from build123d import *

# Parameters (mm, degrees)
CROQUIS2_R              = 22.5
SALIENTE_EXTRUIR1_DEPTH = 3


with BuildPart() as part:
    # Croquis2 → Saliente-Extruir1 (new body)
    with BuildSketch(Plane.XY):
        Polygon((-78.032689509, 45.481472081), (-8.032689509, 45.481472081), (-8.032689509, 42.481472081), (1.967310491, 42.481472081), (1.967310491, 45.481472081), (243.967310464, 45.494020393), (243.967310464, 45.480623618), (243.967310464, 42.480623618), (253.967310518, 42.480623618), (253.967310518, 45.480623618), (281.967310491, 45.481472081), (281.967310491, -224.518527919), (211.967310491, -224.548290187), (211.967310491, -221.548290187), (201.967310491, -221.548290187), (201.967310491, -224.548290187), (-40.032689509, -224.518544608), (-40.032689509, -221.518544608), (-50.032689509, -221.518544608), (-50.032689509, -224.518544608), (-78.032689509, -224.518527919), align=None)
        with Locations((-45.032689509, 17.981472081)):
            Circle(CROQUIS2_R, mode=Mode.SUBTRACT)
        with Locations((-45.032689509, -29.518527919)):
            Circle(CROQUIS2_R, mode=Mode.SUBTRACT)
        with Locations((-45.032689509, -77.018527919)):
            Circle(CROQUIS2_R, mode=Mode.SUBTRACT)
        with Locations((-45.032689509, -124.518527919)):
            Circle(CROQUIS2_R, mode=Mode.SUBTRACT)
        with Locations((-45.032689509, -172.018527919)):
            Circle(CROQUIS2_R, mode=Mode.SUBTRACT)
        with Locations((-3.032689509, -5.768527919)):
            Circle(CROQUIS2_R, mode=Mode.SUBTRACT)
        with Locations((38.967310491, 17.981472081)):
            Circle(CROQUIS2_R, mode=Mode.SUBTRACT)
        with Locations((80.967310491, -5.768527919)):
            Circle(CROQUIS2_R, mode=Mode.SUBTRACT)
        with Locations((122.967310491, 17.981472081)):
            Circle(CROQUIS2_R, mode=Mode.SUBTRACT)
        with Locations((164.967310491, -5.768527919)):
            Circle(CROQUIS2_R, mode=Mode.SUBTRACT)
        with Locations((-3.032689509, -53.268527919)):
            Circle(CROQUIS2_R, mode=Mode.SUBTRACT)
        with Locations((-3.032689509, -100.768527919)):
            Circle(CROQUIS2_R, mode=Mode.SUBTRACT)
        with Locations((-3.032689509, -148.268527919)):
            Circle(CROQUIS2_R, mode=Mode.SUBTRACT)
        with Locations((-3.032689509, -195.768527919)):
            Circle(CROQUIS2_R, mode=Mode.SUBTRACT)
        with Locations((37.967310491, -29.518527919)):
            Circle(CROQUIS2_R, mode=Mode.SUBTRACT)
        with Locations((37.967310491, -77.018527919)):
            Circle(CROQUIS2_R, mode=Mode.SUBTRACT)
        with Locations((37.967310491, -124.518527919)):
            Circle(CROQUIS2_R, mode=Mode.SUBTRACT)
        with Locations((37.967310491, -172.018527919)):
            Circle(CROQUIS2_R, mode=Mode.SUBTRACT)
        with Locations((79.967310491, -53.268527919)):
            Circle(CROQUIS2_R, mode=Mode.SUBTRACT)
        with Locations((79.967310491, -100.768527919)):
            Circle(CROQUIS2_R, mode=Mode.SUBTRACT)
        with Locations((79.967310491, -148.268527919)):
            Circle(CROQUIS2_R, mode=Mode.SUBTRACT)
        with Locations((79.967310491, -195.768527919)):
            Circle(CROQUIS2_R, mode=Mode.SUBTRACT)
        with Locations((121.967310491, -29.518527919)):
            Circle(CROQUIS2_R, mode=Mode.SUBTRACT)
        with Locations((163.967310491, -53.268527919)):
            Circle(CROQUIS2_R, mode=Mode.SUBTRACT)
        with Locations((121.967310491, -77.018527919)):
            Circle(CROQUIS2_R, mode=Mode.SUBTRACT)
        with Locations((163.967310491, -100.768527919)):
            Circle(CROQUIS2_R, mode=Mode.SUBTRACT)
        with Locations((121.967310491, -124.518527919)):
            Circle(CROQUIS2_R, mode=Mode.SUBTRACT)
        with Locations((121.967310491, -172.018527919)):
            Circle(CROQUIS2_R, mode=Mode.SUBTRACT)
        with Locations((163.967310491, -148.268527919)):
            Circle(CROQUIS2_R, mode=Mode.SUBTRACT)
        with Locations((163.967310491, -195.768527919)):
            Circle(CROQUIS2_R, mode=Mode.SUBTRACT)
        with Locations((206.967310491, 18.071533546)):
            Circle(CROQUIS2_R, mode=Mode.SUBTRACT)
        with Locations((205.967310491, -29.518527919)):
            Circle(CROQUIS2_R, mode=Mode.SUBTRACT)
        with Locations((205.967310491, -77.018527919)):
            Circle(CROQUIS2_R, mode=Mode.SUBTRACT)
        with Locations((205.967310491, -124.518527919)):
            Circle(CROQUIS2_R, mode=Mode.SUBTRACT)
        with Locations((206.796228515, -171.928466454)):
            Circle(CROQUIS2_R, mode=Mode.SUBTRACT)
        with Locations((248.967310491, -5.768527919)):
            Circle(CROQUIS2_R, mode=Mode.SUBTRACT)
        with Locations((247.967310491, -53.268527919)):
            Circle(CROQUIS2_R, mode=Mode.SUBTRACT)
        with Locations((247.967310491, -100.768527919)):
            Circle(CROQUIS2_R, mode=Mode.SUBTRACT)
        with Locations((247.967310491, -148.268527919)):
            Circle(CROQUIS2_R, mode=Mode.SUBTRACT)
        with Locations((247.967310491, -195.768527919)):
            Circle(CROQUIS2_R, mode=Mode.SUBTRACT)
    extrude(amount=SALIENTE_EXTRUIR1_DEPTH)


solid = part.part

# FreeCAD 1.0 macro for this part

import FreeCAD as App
import Part
import Sketcher

V = App.Vector

doc = App.newDocument("Part")
params = doc.addObject("Spreadsheet::Sheet", "Params")
for row, (alias, value) in enumerate([
    ("sketch1_diameter", "45 mm"),
    ("sketch1_width", "70 mm"),
    ("sketch1_width2", "10 mm"),
    ("sketch1_height", "270 mm"),
    ("sketch1_height2", "3 mm"),
    ("pad1_length", "3 mm"),
], start=1):
    params.set(f"A{row}", alias)
    params.set(f"B{row}", "=" + value)
    params.setAlias(f"B{row}", alias)

body = doc.addObject("PartDesign::Body", "Body")

# Sketch on XY plane
sketch1 = body.newObject("Sketcher::SketchObject", "Sketch")
sketch1.AttachmentSupport = (doc.getObject("XY_Plane"), [""])
sketch1.MapMode = "FlatFace"
sketch1.addGeometry([
    Part.LineSegment(V(-8, 45.5, 0), V(-78, 45.5, 0)),  # 0
    Part.LineSegment(V(-78, 45.5, 0), V(-78, -224.5, 0)),  # 1
    Part.LineSegment(V(-78, -224.5, 0), V(-50, -224.5, 0)),  # 2
    Part.LineSegment(V(-50, -224.5, 0), V(-50, -221.5, 0)),  # 3
    Part.LineSegment(V(-50, -221.5, 0), V(-40, -221.5, 0)),  # 4
    Part.LineSegment(V(-40, -221.5, 0), V(-40, -224.5, 0)),  # 5
    Part.LineSegment(V(-40, -224.5, 0), V(202, -224.5, 0)),  # 6
    Part.LineSegment(V(202, -224.5, 0), V(202, -221.5, 0)),  # 7
    Part.LineSegment(V(202, -221.5, 0), V(212, -221.5, 0)),  # 8
    Part.LineSegment(V(212, -221.5, 0), V(212, -224.5, 0)),  # 9
    Part.LineSegment(V(212, -224.5, 0), V(282, -224.5, 0)),  # 10
    Part.LineSegment(V(282, -224.5, 0), V(282, 45.5, 0)),  # 11
    Part.LineSegment(V(282, 45.5, 0), V(254, 45.5, 0)),  # 12
    Part.LineSegment(V(254, 45.5, 0), V(254, 42.5, 0)),  # 13
    Part.LineSegment(V(254, 42.5, 0), V(244, 42.5, 0)),  # 14
    Part.LineSegment(V(244, 42.5, 0), V(244, 45.5, 0)),  # 15
    Part.LineSegment(V(244, 45.5, 0), V(2, 45.5, 0)),  # 16
    Part.LineSegment(V(2, 45.5, 0), V(2, 42.5, 0)),  # 17
    Part.LineSegment(V(2, 42.5, 0), V(-8, 42.5, 0)),  # 18
    Part.LineSegment(V(-8, 42.5, 0), V(-8, 45.5, 0)),  # 19
    Part.Circle(V(248, -195.8, 0), V(0, 0, 1), 22.5),  # 20
    Part.Circle(V(206.8, -171.9, 0), V(0, 0, 1), 22.5),  # 21
    Part.Circle(V(164, -195.8, 0), V(0, 0, 1), 22.5),  # 22
    Part.Circle(V(122, -172, 0), V(0, 0, 1), 22.5),  # 23
    Part.Circle(V(248, -148.3, 0), V(0, 0, 1), 22.5),  # 24
    Part.Circle(V(206, -124.5, 0), V(0, 0, 1), 22.5),  # 25
    Part.Circle(V(248, -100.8, 0), V(0, 0, 1), 22.5),  # 26
    Part.Circle(V(164, -148.3, 0), V(0, 0, 1), 22.5),  # 27
    Part.Circle(V(122, -124.5, 0), V(0, 0, 1), 22.5),  # 28
    Part.Circle(V(164, -100.8, 0), V(0, 0, 1), 22.5),  # 29
    Part.Circle(V(80, -195.8, 0), V(0, 0, 1), 22.5),  # 30
    Part.Circle(V(38, -172, 0), V(0, 0, 1), 22.5),  # 31
    Part.Circle(V(-3, -195.8, 0), V(0, 0, 1), 22.5),  # 32
    Part.Circle(V(-45, -172, 0), V(0, 0, 1), 22.5),  # 33
    Part.Circle(V(80, -148.3, 0), V(0, 0, 1), 22.5),  # 34
    Part.Circle(V(38, -124.5, 0), V(0, 0, 1), 22.5),  # 35
    Part.Circle(V(80, -100.8, 0), V(0, 0, 1), 22.5),  # 36
    Part.Circle(V(-3, -148.3, 0), V(0, 0, 1), 22.5),  # 37
    Part.Circle(V(-45, -124.5, 0), V(0, 0, 1), 22.5),  # 38
    Part.Circle(V(-3, -100.8, 0), V(0, 0, 1), 22.5),  # 39
    Part.Circle(V(206, -77, 0), V(0, 0, 1), 22.5),  # 40
    Part.Circle(V(248, -53.3, 0), V(0, 0, 1), 22.5),  # 41
    Part.Circle(V(206, -29.5, 0), V(0, 0, 1), 22.5),  # 42
    Part.Circle(V(122, -77, 0), V(0, 0, 1), 22.5),  # 43
    Part.Circle(V(164, -53.3, 0), V(0, 0, 1), 22.5),  # 44
    Part.Circle(V(122, -29.5, 0), V(0, 0, 1), 22.5),  # 45
    Part.Circle(V(249, -5.8, 0), V(0, 0, 1), 22.5),  # 46
    Part.Circle(V(207, 18.1, 0), V(0, 0, 1), 22.5),  # 47
    Part.Circle(V(165, -5.8, 0), V(0, 0, 1), 22.5),  # 48
    Part.Circle(V(123, 18, 0), V(0, 0, 1), 22.5),  # 49
    Part.Circle(V(38, -77, 0), V(0, 0, 1), 22.5),  # 50
    Part.Circle(V(80, -53.3, 0), V(0, 0, 1), 22.5),  # 51
    Part.Circle(V(38, -29.5, 0), V(0, 0, 1), 22.5),  # 52
    Part.Circle(V(-45, -77, 0), V(0, 0, 1), 22.5),  # 53
    Part.Circle(V(-3, -53.3, 0), V(0, 0, 1), 22.5),  # 54
    Part.Circle(V(-45, -29.5, 0), V(0, 0, 1), 22.5),  # 55
    Part.Circle(V(81, -5.8, 0), V(0, 0, 1), 22.5),  # 56
    Part.Circle(V(39, 18, 0), V(0, 0, 1), 22.5),  # 57
    Part.Circle(V(-3, -5.8, 0), V(0, 0, 1), 22.5),  # 58
    Part.Circle(V(-45, 18, 0), V(0, 0, 1), 22.5),  # 59
], False)
sketch1.addConstraint([
    Sketcher.Constraint("Coincident", 0, 2, 1, 1),
    Sketcher.Constraint("Coincident", 1, 2, 2, 1),
    Sketcher.Constraint("Coincident", 2, 2, 3, 1),
    Sketcher.Constraint("Coincident", 3, 2, 4, 1),
    Sketcher.Constraint("Coincident", 4, 2, 5, 1),
    Sketcher.Constraint("Coincident", 5, 2, 6, 1),
    Sketcher.Constraint("Coincident", 6, 2, 7, 1),
    Sketcher.Constraint("Coincident", 7, 2, 8, 1),
    Sketcher.Constraint("Coincident", 8, 2, 9, 1),
    Sketcher.Constraint("Coincident", 9, 2, 10, 1),
    Sketcher.Constraint("Coincident", 10, 2, 11, 1),
    Sketcher.Constraint("Coincident", 11, 2, 12, 1),
    Sketcher.Constraint("Coincident", 12, 2, 13, 1),
    Sketcher.Constraint("Coincident", 13, 2, 14, 1),
    Sketcher.Constraint("Coincident", 14, 2, 15, 1),
    Sketcher.Constraint("Coincident", 15, 2, 16, 1),
    Sketcher.Constraint("Coincident", 16, 2, 17, 1),
    Sketcher.Constraint("Coincident", 17, 2, 18, 1),
    Sketcher.Constraint("Coincident", 18, 2, 19, 1),
    Sketcher.Constraint("Coincident", 19, 2, 0, 1),
    Sketcher.Constraint("Horizontal", 0),
    Sketcher.Constraint("Vertical", 1),
    Sketcher.Constraint("Vertical", 3),
    Sketcher.Constraint("Horizontal", 4),
    Sketcher.Constraint("Vertical", 5),
    Sketcher.Constraint("Vertical", 7),
    Sketcher.Constraint("Horizontal", 8),
    Sketcher.Constraint("Vertical", 9),
    Sketcher.Constraint("Vertical", 11),
    Sketcher.Constraint("Vertical", 13),
    Sketcher.Constraint("Horizontal", 14),
    Sketcher.Constraint("Vertical", 15),
    Sketcher.Constraint("Vertical", 17),
    Sketcher.Constraint("Horizontal", 18),
    Sketcher.Constraint("Vertical", 19),
    Sketcher.Constraint("Equal", 20, 21),
    Sketcher.Constraint("Equal", 21, 22),
    Sketcher.Constraint("Equal", 22, 23),
    Sketcher.Constraint("Equal", 23, 24),
    Sketcher.Constraint("Equal", 24, 25),
    Sketcher.Constraint("Equal", 25, 26),
    Sketcher.Constraint("Equal", 26, 27),
    Sketcher.Constraint("Equal", 27, 28),
    Sketcher.Constraint("Equal", 28, 29),
    Sketcher.Constraint("Equal", 29, 30),
    Sketcher.Constraint("Equal", 30, 31),
    Sketcher.Constraint("Equal", 31, 32),
    Sketcher.Constraint("Equal", 32, 33),
    Sketcher.Constraint("Equal", 33, 34),
    Sketcher.Constraint("Equal", 34, 35),
    Sketcher.Constraint("Equal", 35, 36),
    Sketcher.Constraint("Equal", 36, 37),
    Sketcher.Constraint("Equal", 37, 38),
    Sketcher.Constraint("Equal", 38, 39),
    Sketcher.Constraint("Equal", 39, 40),
    Sketcher.Constraint("Equal", 40, 41),
    Sketcher.Constraint("Equal", 41, 42),
    Sketcher.Constraint("Equal", 42, 43),
    Sketcher.Constraint("Equal", 43, 44),
    Sketcher.Constraint("Equal", 44, 45),
    Sketcher.Constraint("Equal", 45, 46),
    Sketcher.Constraint("Equal", 46, 47),
    Sketcher.Constraint("Equal", 47, 48),
    Sketcher.Constraint("Equal", 48, 49),
    Sketcher.Constraint("Equal", 49, 50),
    Sketcher.Constraint("Equal", 50, 51),
    Sketcher.Constraint("Equal", 51, 52),
    Sketcher.Constraint("Equal", 52, 53),
    Sketcher.Constraint("Equal", 53, 54),
    Sketcher.Constraint("Equal", 54, 55),
    Sketcher.Constraint("Equal", 55, 56),
    Sketcher.Constraint("Equal", 56, 57),
    Sketcher.Constraint("Equal", 57, 58),
    Sketcher.Constraint("Equal", 58, 59),
    Sketcher.Constraint("Horizontal", 20, 3, 22, 3),
    Sketcher.Constraint("Horizontal", 24, 3, 27, 3),
    Sketcher.Constraint("Horizontal", 25, 3, 28, 3),
    Sketcher.Constraint("Horizontal", 26, 3, 29, 3),
    Sketcher.Constraint("Horizontal", 22, 3, 30, 3),
    Sketcher.Constraint("Horizontal", 23, 3, 31, 3),
    Sketcher.Constraint("Horizontal", 30, 3, 32, 3),
    Sketcher.Constraint("Horizontal", 31, 3, 33, 3),
    Sketcher.Constraint("Horizontal", 27, 3, 34, 3),
    Sketcher.Constraint("Horizontal", 28, 3, 35, 3),
    Sketcher.Constraint("Horizontal", 29, 3, 36, 3),
    Sketcher.Constraint("Horizontal", 34, 3, 37, 3),
    Sketcher.Constraint("Horizontal", 35, 3, 38, 3),
    Sketcher.Constraint("Horizontal", 36, 3, 39, 3),
    Sketcher.Constraint("Horizontal", 40, 3, 43, 3),
    Sketcher.Constraint("Horizontal", 41, 3, 44, 3),
    Sketcher.Constraint("Horizontal", 42, 3, 45, 3),
    Sketcher.Constraint("Horizontal", 46, 3, 48, 3),
    Sketcher.Constraint("Horizontal", 43, 3, 50, 3),
    Sketcher.Constraint("Horizontal", 44, 3, 51, 3),
    Sketcher.Constraint("Horizontal", 45, 3, 52, 3),
    Sketcher.Constraint("Horizontal", 50, 3, 53, 3),
    Sketcher.Constraint("Horizontal", 51, 3, 54, 3),
    Sketcher.Constraint("Horizontal", 52, 3, 55, 3),
    Sketcher.Constraint("Horizontal", 48, 3, 56, 3),
    Sketcher.Constraint("Horizontal", 49, 3, 57, 3),
    Sketcher.Constraint("Horizontal", 56, 3, 58, 3),
    Sketcher.Constraint("Horizontal", 57, 3, 59, 3),
    Sketcher.Constraint("Horizontal", 2, 2, 5, 2),
    Sketcher.Constraint("Horizontal", 6, 2, 9, 2),
    Sketcher.Constraint("Horizontal", 1, 2, 10, 2),
    Sketcher.Constraint("Horizontal", 0, 2, 11, 2),
    Sketcher.Constraint("Horizontal", 11, 2, 16, 2),
    Sketcher.Constraint("Vertical", 20, 3, 24, 3),
    Sketcher.Constraint("Vertical", 24, 3, 26, 3),
    Sketcher.Constraint("Vertical", 22, 3, 27, 3),
    Sketcher.Constraint("Vertical", 23, 3, 28, 3),
    Sketcher.Constraint("Vertical", 27, 3, 29, 3),
    Sketcher.Constraint("Vertical", 30, 3, 34, 3),
    Sketcher.Constraint("Vertical", 31, 3, 35, 3),
    Sketcher.Constraint("Vertical", 34, 3, 36, 3),
    Sketcher.Constraint("Vertical", 32, 3, 37, 3),
    Sketcher.Constraint("Vertical", 33, 3, 38, 3),
    Sketcher.Constraint("Vertical", 37, 3, 39, 3),
    Sketcher.Constraint("Vertical", 25, 3, 40, 3),
    Sketcher.Constraint("Vertical", 26, 3, 41, 3),
    Sketcher.Constraint("Vertical", 40, 3, 42, 3),
    Sketcher.Constraint("Vertical", 28, 3, 43, 3),
    Sketcher.Constraint("Vertical", 29, 3, 44, 3),
    Sketcher.Constraint("Vertical", 43, 3, 45, 3),
    Sketcher.Constraint("Vertical", 35, 3, 50, 3),
    Sketcher.Constraint("Vertical", 36, 3, 51, 3),
    Sketcher.Constraint("Vertical", 50, 3, 52, 3),
    Sketcher.Constraint("Vertical", 38, 3, 53, 3),
    Sketcher.Constraint("Vertical", 39, 3, 54, 3),
    Sketcher.Constraint("Vertical", 53, 3, 55, 3),
    Sketcher.Constraint("Vertical", 54, 3, 58, 3),
    Sketcher.Constraint("Vertical", 55, 3, 59, 3),
    Sketcher.Constraint("Equal", 4, 8),
    Sketcher.Constraint("Equal", 8, 14),
    Sketcher.Constraint("Equal", 14, 18),
    Sketcher.Constraint("Equal", 5, 7),
    Sketcher.Constraint("Equal", 9, 13),
    Sketcher.Constraint("Equal", 13, 17),
    Sketcher.Constraint("Equal", 2, 12),
    Sketcher.Constraint("Equal", 6, 16),
    Sketcher.Constraint("Diameter", 20, 45.0),
    Sketcher.Constraint("DistanceX", 0, 2, 0, 1, 70.0),
    Sketcher.Constraint("DistanceX", 4, 1, 4, 2, 10.0),
    Sketcher.Constraint("DistanceY", 1, 2, 1, 1, 270.0),
    Sketcher.Constraint("DistanceY", 3, 1, 3, 2, 3.0),
    Sketcher.Constraint("Distance", 2, 28.0),
    Sketcher.Constraint("Distance", 6, 242.000002),
    Sketcher.Constraint("DistanceX", 22, 3, 20, 3, 84.0),
    Sketcher.Constraint("DistanceX", 23, 3, 22, 3, 42.0),
    Sketcher.Constraint("DistanceX", 25, 3, 24, 3, 42.0),
    Sketcher.Constraint("DistanceY", 20, 3, 26, 3, 95.0),
    Sketcher.Constraint("DistanceX", 30, 3, 23, 3, 42.0),
    Sketcher.Constraint("DistanceX", 31, 3, 30, 3, 42.0),
    Sketcher.Constraint("DistanceX", 32, 3, 31, 3, 41.0),
    Sketcher.Constraint("DistanceX", 33, 3, 32, 3, 42.0),
    Sketcher.Constraint("DistanceY", 24, 3, 41, 3, 95.0),
    Sketcher.Constraint("DistanceY", 25, 3, 42, 3, 95.0),
    Sketcher.Constraint("DistanceX", 41, 3, 46, 3, 1.0),
    Sketcher.Constraint("DistanceY", 26, 3, 46, 3, 95.0),
    Sketcher.Constraint("DistanceX", 42, 3, 47, 3, 1.0),
    Sketcher.Constraint("DistanceX", 48, 3, 42, 3, 41.0),
    Sketcher.Constraint("DistanceX", 45, 3, 49, 3, 1.0),
    Sketcher.Constraint("DistanceY", 43, 3, 49, 3, 95.0),
    Sketcher.Constraint("DistanceY", 33, 3, 53, 3, 95.0),
    Sketcher.Constraint("DistanceX", 56, 3, 45, 3, 41.0),
    Sketcher.Constraint("DistanceX", 52, 3, 57, 3, 1.0),
    Sketcher.Constraint("DistanceX", 0, 2, 59, 3, 33.0),
    Sketcher.Constraint("DistanceY", 55, 3, 0, 2, 75.0),
    Sketcher.Constraint("DistanceY", 20, 3, 24, 3, 47.5),
    Sketcher.Constraint("DistanceY", 23, 3, 25, 3, 47.5),
    Sketcher.Constraint("DistanceY", 22, 3, 23, 3, 23.75),
    Sketcher.Constraint("DistanceY", 15, 1, 15, 2, 3.013397),
    Sketcher.Constraint("DistanceX", -1, 1, 20, 3, 247.96731),
    Sketcher.Constraint("DistanceX", -1, 1, 21, 3, 206.796229),
    Sketcher.Constraint("DistanceY", 6, 2, -1, 1, 224.54829),
    Sketcher.Constraint("DistanceY", -1, 1, 15, 2, 45.49402),
    Sketcher.Constraint("DistanceY", 20, 3, 21, 3, 23.840061),
    Sketcher.Constraint("DistanceY", 42, 3, 47, 3, 47.590061),
    Sketcher.Constraint("DistanceY", 12, 2, 11, 2, 0.000848),
    Sketcher.Constraint("DistanceY", 2, 2, -1, 1, 224.518545),
])
sketch1.setExpression("Constraints[140]", "Params.sketch1_diameter")
sketch1.setExpression("Constraints[141]", "Params.sketch1_width")
sketch1.setExpression("Constraints[142]", "Params.sketch1_width2")
sketch1.setExpression("Constraints[143]", "Params.sketch1_height")
sketch1.setExpression("Constraints[144]", "Params.sketch1_height2")
pad1 = body.newObject("PartDesign::Pad", "Pad")
pad1.Profile = sketch1
pad1.setExpression("Length", "Params.pad1_length")

doc.recompute()
